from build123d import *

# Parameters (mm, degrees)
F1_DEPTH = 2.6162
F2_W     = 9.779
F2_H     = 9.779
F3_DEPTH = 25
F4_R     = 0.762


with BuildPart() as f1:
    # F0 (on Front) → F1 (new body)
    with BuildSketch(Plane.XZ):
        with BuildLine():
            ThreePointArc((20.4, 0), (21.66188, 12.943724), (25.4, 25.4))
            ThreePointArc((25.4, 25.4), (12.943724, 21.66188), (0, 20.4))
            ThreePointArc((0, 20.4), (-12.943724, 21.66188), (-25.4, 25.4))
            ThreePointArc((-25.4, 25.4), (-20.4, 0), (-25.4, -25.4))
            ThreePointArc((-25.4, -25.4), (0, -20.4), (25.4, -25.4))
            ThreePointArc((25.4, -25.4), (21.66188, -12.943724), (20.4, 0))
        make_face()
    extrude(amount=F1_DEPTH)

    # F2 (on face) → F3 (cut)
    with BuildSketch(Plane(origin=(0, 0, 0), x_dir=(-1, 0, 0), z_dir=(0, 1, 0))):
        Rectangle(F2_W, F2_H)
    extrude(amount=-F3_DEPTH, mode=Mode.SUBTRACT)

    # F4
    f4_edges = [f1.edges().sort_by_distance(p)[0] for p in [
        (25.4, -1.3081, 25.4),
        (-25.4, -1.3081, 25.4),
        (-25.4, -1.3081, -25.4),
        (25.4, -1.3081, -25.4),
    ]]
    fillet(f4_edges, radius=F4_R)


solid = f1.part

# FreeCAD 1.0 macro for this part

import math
import FreeCAD as App
import Part
import Sketcher
from FreeCAD import Vector
Q = App.Units.Quantity


def edges_at(feature, points):
    """Names of the edges that pass closest to the given points."""
    edges = feature.Shape.Edges
    near = lambda p: min(range(len(edges)), key=lambda i: edges[i].distToShape(Part.Vertex(*p))[0])
    return sorted({f"Edge{near(p) + 1}" for p in points})

doc = App.newDocument("Part")
body = doc.addObject("PartDesign::Body", "Body")

# Sketch on XZ plane
sketch1 = body.newObject("Sketcher::SketchObject", "Sketch")
sketch1.AttachmentSupport = (doc.getObject("XZ_Plane"), [""])
sketch1.MapMode = "FlatFace"
sketch1.addGeometry([
    Part.ArcOfCircle(Part.Circle(Vector(87, 0, 0), Vector(0, 0, 1), 67), math.radians(158), math.radians(180)),  # 0
    Part.ArcOfCircle(Part.Circle(Vector(0, 87, 0), Vector(0, 0, 1), 67), math.radians(-90), math.radians(-68)),  # 1
    Part.ArcOfCircle(Part.Circle(Vector(0, 87, 0), Vector(0, 0, 1), 67), math.radians(-112), math.radians(-90)),  # 2
    Part.ArcOfCircle(Part.Circle(Vector(-87, 0, 0), Vector(0, 0, 1), 67), math.radians(-22), math.radians(22)),  # 3
    Part.ArcOfCircle(Part.Circle(Vector(0, -87, 0), Vector(0, 0, 1), 67), math.radians(68), math.radians(112)),  # 4
    Part.ArcOfCircle(Part.Circle(Vector(87, 0, 0), Vector(0, 0, 1), 67), math.radians(180), math.radians(202)),  # 5
], False)
sketch1.addConstraint([
    Sketcher.Constraint("Coincident", 0, 1, 1, 2),
    Sketcher.Constraint("Tangent", 1, 1, 2, 2),
    Sketcher.Constraint("Coincident", 2, 1, 3, 2),
    Sketcher.Constraint("Coincident", 3, 1, 4, 2),
    Sketcher.Constraint("Coincident", 4, 1, 5, 2),
    Sketcher.Constraint("Tangent", 5, 1, 0, 2),
    Sketcher.Constraint("Equal", 0, 1),
    Sketcher.Constraint("Equal", 1, 2),
    Sketcher.Constraint("Equal", 3, 4),
    Sketcher.Constraint("Equal", 2, 5),
    Sketcher.Constraint("Symmetric", 0, 1, 3, 1, -1, 1),
    Sketcher.Constraint("Symmetric", 2, 1, 4, 1, -1, 1),
    Sketcher.Constraint("Symmetric", 0, 1, 2, 1, -2),
    Sketcher.Constraint("PointOnObject", 1, 1, -2),
    Sketcher.Constraint("PointOnObject", 5, 1, -1),
    Sketcher.Constraint("DistanceX", -1, 1, 0, 1, Q("1 in")),
    Sketcher.Constraint("DistanceY", -1, 1, 0, 1, Q("1 in")),
    Sketcher.Constraint("Radius", 3, 67.016),
    Sketcher.Constraint("Radius", 0, 67.015988),
])
pad1 = body.newObject("PartDesign::Pad", "Pad")
pad1.Profile = sketch1
pad1.Length = Q("0.103 in")

# Sketch on XZ plane
sketch2 = body.newObject("Sketcher::SketchObject", "Sketch001")
sketch2.AttachmentSupport = (doc.getObject("XZ_Plane"), [""])
sketch2.MapMode = "FlatFace"
sketch2.addGeometry([
    Part.LineSegment(Vector(5, 5, 0), Vector(5, -5, 0)),
    Part.LineSegment(Vector(5, -5, 0), Vector(-5, -5, 0)),
    Part.LineSegment(Vector(-5, -5, 0), Vector(-5, 5, 0)),
    Part.LineSegment(Vector(-5, 5, 0), Vector(5, 5, 0)),
], False)
sketch2.addConstraint([
    Sketcher.Constraint("Coincident", 0, 2, 1, 1),
    Sketcher.Constraint("Coincident", 1, 2, 2, 1),
    Sketcher.Constraint("Coincident", 2, 2, 3, 1),
    Sketcher.Constraint("Coincident", 3, 2, 0, 1),
    Sketcher.Constraint("Vertical", 0),
    Sketcher.Constraint("Horizontal", 1),
    Sketcher.Constraint("Vertical", 2),
    Sketcher.Constraint("Horizontal", 3),
    Sketcher.Constraint("Symmetric", 0, 2, 2, 2, -1, 1),
    Sketcher.Constraint("Equal", 3, 0),
    Sketcher.Constraint("DistanceX", 1, 2, 1, 1, Q("0.385 in")),
])
pocket1 = body.newObject("PartDesign::Pocket", "Pocket")
pocket1.Profile = sketch2
pocket1.Length = 25
pocket1.Reversed = True
doc.recompute()

fillet = body.newObject("PartDesign::Fillet", "Fillet")
fillet.Base = (pocket1, edges_at(pocket1, [
    (25.4, -1.308, 25.4),
    (-25.4, -1.308, 25.4),
    (-25.4, -1.308, -25.4),
    (25.4, -1.308, -25.4),
]))
fillet.Radius = Q("0.03 in")

doc.recompute()
